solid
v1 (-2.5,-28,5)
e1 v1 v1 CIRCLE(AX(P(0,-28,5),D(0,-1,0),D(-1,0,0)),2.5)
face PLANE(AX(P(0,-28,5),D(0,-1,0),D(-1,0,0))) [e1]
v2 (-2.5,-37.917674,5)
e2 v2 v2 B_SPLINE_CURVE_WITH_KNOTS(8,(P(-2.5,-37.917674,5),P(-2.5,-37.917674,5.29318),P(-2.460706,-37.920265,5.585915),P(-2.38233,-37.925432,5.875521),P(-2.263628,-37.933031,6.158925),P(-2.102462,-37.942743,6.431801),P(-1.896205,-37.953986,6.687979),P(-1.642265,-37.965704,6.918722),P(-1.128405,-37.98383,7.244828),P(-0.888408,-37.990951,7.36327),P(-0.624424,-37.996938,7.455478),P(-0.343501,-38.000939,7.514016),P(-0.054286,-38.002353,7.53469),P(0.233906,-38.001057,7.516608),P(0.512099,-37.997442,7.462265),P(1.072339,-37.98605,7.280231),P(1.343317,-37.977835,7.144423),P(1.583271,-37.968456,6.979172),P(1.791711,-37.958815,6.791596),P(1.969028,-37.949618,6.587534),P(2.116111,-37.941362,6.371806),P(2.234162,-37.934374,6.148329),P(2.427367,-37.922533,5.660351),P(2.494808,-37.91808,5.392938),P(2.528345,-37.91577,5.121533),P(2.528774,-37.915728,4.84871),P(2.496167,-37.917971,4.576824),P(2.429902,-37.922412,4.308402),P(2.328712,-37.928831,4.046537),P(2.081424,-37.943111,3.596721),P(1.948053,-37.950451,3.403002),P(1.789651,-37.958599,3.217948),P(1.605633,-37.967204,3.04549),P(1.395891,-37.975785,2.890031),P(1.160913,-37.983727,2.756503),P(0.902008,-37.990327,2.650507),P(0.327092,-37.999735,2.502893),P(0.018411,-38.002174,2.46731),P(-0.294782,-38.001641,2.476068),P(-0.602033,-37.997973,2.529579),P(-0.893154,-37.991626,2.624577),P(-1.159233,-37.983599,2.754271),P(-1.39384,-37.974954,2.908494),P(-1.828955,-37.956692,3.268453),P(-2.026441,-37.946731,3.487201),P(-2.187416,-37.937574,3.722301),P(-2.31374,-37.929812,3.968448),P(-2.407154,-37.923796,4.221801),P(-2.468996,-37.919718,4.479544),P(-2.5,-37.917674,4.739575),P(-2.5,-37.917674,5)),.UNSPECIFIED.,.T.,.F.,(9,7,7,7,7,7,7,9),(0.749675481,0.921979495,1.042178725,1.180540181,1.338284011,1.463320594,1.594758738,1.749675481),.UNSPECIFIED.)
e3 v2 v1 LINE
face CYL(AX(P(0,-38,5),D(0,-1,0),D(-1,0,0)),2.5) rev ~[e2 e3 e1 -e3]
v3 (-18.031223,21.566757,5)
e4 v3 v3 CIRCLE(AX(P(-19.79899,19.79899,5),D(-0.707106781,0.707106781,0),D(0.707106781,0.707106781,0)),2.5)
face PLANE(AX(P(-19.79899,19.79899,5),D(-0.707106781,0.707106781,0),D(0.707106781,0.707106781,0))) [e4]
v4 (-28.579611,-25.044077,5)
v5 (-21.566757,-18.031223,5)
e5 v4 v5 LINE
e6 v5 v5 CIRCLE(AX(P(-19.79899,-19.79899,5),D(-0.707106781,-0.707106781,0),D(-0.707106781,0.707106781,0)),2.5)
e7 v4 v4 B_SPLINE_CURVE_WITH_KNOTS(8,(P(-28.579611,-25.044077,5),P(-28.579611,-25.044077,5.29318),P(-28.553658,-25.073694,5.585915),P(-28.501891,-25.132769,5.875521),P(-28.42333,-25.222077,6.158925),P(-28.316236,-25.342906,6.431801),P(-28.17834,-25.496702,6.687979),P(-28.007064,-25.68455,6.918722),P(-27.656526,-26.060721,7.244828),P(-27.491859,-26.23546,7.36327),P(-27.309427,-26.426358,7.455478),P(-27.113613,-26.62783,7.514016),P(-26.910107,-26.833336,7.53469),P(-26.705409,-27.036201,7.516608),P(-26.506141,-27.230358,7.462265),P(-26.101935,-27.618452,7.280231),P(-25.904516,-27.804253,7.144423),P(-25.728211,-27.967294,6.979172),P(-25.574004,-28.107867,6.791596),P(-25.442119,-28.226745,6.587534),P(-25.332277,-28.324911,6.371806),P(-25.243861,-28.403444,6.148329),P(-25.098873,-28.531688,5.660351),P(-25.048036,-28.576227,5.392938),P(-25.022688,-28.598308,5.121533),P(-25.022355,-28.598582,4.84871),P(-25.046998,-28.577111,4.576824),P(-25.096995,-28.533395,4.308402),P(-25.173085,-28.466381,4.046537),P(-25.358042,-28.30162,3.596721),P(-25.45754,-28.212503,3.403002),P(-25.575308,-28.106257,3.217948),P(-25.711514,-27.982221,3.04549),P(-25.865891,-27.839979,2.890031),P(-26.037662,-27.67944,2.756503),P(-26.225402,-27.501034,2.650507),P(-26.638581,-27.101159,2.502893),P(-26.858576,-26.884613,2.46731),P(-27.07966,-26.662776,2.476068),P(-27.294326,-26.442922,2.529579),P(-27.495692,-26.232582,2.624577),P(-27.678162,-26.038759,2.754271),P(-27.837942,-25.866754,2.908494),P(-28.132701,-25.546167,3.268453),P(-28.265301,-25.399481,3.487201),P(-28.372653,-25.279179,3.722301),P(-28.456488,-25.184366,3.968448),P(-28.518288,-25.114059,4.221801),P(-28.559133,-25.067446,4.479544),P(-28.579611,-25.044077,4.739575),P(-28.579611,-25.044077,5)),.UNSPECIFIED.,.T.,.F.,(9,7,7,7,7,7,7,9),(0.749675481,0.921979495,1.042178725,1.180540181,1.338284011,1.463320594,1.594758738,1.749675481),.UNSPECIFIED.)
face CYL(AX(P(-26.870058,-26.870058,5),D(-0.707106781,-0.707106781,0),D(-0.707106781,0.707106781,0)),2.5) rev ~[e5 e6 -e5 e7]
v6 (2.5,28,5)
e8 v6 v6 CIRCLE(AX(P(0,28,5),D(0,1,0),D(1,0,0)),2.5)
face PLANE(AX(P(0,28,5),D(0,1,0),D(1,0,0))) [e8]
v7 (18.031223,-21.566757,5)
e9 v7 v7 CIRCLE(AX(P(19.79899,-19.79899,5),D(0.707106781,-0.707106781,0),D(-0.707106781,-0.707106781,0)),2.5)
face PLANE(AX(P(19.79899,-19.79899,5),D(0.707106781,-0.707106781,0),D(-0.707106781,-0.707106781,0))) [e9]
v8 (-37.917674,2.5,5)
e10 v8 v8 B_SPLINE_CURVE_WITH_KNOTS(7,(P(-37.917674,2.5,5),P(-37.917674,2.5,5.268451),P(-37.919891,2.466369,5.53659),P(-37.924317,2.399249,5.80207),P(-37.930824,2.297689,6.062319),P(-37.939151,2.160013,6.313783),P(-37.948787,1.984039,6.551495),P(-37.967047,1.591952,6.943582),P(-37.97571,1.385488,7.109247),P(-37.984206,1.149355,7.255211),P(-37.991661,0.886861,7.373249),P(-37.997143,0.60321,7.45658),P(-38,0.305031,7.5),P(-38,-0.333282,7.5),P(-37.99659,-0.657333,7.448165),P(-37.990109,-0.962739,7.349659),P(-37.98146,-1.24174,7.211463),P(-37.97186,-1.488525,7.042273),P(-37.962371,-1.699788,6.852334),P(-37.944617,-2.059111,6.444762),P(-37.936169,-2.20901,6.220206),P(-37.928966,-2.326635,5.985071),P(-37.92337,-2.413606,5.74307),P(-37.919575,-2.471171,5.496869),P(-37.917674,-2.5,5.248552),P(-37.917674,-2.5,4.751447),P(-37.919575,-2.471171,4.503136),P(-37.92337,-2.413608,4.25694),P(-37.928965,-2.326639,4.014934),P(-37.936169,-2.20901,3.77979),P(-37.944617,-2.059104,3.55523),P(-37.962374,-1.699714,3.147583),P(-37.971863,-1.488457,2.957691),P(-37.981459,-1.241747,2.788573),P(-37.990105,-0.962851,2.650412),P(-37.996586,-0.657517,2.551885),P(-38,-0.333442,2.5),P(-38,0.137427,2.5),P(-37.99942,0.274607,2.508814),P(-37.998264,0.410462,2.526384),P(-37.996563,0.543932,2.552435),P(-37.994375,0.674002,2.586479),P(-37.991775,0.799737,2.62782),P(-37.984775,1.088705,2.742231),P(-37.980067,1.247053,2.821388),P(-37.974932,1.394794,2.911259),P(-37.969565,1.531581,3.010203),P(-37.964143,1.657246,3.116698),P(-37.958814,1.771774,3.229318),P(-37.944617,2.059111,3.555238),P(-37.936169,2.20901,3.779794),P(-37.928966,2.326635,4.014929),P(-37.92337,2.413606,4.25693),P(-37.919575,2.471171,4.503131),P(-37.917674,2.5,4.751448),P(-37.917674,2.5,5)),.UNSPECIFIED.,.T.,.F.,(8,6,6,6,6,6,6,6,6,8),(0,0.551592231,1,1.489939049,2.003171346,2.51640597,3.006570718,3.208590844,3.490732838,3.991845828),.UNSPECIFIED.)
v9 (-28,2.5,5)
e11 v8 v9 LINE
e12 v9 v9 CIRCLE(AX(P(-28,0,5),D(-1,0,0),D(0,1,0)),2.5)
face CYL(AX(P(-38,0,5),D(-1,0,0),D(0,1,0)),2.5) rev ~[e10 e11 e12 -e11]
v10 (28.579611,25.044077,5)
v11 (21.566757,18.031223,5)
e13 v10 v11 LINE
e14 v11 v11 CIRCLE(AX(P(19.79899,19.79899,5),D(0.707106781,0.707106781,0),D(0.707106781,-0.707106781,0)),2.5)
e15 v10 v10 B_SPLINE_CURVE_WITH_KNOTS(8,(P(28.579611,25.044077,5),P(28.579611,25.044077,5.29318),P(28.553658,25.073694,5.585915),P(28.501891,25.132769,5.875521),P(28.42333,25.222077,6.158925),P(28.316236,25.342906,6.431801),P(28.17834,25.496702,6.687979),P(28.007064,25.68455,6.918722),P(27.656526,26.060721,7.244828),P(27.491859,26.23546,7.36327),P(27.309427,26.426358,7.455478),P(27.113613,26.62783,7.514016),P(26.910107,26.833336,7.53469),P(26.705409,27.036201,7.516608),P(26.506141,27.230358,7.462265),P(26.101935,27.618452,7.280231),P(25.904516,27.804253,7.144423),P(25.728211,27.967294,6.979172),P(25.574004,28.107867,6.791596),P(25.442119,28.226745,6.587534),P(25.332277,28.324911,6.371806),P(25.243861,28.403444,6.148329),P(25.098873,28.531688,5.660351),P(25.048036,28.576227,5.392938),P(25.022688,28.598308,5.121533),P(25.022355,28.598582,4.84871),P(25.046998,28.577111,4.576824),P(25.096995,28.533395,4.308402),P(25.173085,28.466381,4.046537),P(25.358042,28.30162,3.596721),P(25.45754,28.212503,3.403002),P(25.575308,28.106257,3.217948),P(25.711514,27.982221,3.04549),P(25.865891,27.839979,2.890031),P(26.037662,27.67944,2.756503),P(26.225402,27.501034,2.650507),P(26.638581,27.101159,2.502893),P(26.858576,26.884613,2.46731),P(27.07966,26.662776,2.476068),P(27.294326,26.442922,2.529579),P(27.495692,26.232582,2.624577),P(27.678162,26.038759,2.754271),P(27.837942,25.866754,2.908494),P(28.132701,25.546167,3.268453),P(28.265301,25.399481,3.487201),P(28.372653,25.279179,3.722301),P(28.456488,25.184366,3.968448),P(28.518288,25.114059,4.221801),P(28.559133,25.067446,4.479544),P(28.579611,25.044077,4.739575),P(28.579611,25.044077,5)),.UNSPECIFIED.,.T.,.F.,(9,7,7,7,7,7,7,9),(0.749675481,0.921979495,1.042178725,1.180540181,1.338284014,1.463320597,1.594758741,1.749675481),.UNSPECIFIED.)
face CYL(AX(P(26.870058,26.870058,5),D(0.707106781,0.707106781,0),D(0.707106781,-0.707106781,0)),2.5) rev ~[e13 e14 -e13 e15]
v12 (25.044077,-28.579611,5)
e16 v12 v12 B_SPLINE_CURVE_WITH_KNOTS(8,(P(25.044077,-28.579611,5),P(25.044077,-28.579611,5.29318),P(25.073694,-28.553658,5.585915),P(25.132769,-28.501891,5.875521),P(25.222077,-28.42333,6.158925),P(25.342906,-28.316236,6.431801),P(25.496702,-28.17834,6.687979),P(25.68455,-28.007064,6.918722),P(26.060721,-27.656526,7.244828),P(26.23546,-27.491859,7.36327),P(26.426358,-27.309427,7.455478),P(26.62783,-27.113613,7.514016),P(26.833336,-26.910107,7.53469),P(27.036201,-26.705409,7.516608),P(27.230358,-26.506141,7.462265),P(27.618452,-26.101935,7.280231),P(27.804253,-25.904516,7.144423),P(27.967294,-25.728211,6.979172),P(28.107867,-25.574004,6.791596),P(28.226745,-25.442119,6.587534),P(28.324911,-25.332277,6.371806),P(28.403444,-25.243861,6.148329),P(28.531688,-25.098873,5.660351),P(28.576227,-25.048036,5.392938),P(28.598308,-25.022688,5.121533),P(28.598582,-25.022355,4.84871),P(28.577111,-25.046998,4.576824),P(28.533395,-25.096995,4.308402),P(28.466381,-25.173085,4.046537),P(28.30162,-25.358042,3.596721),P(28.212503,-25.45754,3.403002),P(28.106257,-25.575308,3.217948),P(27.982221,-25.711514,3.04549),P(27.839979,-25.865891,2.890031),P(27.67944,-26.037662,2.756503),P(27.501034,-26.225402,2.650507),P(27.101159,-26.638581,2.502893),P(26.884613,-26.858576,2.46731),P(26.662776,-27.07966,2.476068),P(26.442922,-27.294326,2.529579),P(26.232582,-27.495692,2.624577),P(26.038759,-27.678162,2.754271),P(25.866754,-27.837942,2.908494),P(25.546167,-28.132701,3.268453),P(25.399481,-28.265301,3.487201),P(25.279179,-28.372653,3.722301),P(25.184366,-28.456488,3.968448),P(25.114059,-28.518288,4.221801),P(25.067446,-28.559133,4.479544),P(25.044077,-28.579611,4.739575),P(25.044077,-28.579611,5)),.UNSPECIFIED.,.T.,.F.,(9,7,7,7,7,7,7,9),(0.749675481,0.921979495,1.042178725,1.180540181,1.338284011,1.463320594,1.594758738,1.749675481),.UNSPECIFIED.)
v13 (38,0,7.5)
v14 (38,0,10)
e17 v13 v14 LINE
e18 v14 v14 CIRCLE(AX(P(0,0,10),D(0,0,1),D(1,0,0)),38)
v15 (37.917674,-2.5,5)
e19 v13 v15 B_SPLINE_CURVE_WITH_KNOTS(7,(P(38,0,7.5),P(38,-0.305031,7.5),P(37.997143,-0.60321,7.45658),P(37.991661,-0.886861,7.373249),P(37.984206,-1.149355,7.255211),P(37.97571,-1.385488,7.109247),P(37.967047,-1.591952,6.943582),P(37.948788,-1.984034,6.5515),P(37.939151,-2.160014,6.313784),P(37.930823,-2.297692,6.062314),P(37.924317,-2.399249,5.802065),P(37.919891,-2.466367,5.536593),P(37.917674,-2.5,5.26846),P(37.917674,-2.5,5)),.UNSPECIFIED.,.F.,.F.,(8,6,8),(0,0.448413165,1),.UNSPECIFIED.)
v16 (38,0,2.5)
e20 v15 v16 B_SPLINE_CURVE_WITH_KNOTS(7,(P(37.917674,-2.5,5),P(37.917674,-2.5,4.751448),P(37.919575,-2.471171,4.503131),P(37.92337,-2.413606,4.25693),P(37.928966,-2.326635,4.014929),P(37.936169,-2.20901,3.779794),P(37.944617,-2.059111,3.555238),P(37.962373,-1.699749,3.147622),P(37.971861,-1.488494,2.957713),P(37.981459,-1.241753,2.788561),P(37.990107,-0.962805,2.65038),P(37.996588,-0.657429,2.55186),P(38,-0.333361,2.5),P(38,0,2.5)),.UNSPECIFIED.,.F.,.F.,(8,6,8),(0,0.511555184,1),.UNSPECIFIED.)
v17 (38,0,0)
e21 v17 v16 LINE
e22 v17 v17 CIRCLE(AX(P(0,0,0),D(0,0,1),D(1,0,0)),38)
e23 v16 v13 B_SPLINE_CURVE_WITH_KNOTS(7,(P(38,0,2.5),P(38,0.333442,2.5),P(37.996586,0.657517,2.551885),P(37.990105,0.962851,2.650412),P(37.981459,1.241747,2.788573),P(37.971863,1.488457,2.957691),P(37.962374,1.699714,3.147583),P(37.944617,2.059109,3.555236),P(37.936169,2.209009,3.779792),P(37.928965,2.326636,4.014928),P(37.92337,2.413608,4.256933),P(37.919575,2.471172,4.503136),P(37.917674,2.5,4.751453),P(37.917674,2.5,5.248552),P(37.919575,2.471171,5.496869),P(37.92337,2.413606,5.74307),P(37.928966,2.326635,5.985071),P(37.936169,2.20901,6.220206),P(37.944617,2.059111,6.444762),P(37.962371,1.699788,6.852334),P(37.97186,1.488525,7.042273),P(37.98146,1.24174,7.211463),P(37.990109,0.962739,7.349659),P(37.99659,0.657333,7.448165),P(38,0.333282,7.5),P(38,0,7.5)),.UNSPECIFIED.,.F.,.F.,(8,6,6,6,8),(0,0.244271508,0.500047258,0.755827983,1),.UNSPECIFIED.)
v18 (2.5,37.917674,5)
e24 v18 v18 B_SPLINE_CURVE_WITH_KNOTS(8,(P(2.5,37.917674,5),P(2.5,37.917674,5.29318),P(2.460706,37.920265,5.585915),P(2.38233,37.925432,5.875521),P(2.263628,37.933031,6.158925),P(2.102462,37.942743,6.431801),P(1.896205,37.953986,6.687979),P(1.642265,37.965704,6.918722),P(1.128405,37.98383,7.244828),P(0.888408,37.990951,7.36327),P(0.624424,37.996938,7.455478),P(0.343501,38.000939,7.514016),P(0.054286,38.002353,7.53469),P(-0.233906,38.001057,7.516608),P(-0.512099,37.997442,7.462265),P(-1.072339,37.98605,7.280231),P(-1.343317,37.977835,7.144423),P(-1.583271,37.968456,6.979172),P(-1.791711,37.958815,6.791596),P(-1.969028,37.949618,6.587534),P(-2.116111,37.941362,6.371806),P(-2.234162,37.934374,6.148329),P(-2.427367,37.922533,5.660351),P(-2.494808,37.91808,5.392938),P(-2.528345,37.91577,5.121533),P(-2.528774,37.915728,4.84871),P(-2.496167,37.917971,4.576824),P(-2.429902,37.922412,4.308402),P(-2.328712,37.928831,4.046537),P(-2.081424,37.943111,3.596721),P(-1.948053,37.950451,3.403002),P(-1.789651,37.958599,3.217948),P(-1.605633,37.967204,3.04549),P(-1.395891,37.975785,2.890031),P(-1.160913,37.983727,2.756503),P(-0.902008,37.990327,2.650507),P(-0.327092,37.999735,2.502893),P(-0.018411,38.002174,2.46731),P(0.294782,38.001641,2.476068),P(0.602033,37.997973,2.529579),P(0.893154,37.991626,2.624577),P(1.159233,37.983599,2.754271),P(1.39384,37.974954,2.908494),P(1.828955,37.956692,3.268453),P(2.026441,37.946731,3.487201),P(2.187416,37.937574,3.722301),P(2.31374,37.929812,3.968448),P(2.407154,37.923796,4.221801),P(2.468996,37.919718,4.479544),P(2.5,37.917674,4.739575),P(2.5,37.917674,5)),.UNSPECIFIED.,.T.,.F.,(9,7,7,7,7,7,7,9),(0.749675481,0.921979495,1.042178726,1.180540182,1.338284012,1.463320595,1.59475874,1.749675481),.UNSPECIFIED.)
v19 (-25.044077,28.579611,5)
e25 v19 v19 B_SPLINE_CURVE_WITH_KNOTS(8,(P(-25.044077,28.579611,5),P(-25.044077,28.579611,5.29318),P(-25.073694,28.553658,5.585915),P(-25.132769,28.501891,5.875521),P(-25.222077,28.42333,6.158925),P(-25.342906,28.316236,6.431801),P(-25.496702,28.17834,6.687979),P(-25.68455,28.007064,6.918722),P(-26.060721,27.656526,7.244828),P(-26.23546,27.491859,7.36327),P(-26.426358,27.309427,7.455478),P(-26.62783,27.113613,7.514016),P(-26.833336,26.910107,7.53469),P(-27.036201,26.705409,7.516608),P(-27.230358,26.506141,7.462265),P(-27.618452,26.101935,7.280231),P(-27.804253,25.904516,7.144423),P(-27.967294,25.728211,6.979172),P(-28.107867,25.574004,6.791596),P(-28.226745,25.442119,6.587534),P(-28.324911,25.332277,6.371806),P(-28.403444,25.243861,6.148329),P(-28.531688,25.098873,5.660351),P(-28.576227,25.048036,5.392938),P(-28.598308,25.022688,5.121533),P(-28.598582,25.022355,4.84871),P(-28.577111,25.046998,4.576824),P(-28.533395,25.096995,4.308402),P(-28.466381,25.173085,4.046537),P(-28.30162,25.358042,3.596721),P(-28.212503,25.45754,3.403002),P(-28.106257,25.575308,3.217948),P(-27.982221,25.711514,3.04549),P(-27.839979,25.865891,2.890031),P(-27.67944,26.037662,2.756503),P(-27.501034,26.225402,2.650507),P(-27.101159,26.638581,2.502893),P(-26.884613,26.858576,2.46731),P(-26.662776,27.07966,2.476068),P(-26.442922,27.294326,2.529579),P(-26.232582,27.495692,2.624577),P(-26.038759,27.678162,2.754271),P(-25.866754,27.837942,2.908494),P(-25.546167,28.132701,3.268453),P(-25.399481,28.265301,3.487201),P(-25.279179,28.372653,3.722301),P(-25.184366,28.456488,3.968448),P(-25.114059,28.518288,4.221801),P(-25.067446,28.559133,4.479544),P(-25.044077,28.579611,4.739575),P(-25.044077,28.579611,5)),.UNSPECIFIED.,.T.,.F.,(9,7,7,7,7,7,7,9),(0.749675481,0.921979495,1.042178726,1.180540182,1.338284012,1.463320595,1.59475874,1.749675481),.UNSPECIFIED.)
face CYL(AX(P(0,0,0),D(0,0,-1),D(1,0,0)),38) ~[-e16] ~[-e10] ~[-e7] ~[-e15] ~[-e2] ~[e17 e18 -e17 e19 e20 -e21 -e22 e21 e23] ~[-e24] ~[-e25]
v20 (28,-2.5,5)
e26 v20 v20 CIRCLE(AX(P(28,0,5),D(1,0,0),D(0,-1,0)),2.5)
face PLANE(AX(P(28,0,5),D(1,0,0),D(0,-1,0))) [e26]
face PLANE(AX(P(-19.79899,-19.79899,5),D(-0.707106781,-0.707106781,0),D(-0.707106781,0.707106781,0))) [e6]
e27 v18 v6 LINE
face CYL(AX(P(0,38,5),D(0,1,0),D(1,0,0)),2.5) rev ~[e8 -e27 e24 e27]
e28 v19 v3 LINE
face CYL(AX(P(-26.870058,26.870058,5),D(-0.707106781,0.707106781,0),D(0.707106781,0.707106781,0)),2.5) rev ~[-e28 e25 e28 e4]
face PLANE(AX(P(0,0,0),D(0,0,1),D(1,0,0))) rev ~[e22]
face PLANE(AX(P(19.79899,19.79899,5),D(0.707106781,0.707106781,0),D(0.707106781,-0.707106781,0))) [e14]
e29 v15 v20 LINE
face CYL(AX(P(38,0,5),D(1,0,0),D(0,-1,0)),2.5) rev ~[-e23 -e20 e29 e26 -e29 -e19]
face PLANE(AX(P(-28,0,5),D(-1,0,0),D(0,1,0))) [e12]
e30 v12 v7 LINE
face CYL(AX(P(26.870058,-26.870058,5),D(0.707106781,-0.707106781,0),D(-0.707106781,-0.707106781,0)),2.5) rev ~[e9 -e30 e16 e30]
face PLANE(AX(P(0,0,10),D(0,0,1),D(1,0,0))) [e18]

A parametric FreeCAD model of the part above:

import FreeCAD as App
import Part
import Sketcher

V = App.Vector

doc = App.newDocument("Part")
params = doc.addObject("Spreadsheet::Sheet", "Params")
for row, (alias, value) in enumerate([
    ("sketch1_diameter", "76 mm"),
    ("pad1_length", "10 mm"),
    ("sketch2_diameter", "5 mm"),
    ("pocket1_length", "10 mm"),
], start=1):
    params.set(f"A{row}", alias)
    params.set(f"B{row}", "=" + value)
    params.setAlias(f"B{row}", alias)

body = doc.addObject("PartDesign::Body", "Body")

# Sketch on XY plane
sketch1 = doc.addObject("Sketcher::SketchObject", "Sketch")
body.addObject(sketch1)
sketch1.AttachmentSupport = (doc.XY_Plane, [""])
sketch1.MapMode = "FlatFace"
sketch1.addGeometry(Part.Circle(V(0, 0, 0), V(0, 0, 1), 38), False)
sketch1.addConstraint([
    Sketcher.Constraint("Coincident", 0, 3, -1, 1),
    Sketcher.Constraint("Diameter", 0, 76.0),
])
sketch1.setExpression("Constraints[1]", "Params.sketch1_diameter")
pad1 = doc.addObject("PartDesign::Pad", "Pad")
body.addObject(pad1)
pad1.Profile = sketch1
pad1.setExpression("Length", "Params.pad1_length")

# Sketch on XZ plane
sketch2 = doc.addObject("Sketcher::SketchObject", "Sketch001")
body.addObject(sketch2)
sketch2.AttachmentSupport = (doc.XZ_Plane, [""])
sketch2.MapMode = "FlatFace"
sketch2.AttachmentOffset = App.Placement(V(0, 0, -38), App.Rotation())
sketch2.addGeometry(Part.Circle(V(0, 5, 0), V(0, 0, 1), 2.5), False)
sketch2.addConstraint([
    Sketcher.Constraint("PointOnObject", 0, 3, -2),
    Sketcher.Constraint("Diameter", 0, 5.0),
    Sketcher.Constraint("DistanceY", -1, 1, 0, 3, 5.0),
])
sketch2.setExpression("Constraints[1]", "Params.sketch2_diameter")
pocket1 = doc.addObject("PartDesign::Pocket", "Pocket")
body.addObject(pocket1)
pocket1.Profile = sketch2
pocket1.setExpression("Length", "Params.pocket1_length")
pocket1.Reversed = True
doc.recompute()

polarpattern = doc.addObject("PartDesign::PolarPattern", "PolarPattern")
body.addObject(polarpattern)
polarpattern.Originals = [pocket1]
polarpattern.Axis = (doc.Z_Axis, [""])
polarpattern.Angle = 360
polarpattern.Occurrences = 8
body.Tip = polarpattern

doc.recompute()
